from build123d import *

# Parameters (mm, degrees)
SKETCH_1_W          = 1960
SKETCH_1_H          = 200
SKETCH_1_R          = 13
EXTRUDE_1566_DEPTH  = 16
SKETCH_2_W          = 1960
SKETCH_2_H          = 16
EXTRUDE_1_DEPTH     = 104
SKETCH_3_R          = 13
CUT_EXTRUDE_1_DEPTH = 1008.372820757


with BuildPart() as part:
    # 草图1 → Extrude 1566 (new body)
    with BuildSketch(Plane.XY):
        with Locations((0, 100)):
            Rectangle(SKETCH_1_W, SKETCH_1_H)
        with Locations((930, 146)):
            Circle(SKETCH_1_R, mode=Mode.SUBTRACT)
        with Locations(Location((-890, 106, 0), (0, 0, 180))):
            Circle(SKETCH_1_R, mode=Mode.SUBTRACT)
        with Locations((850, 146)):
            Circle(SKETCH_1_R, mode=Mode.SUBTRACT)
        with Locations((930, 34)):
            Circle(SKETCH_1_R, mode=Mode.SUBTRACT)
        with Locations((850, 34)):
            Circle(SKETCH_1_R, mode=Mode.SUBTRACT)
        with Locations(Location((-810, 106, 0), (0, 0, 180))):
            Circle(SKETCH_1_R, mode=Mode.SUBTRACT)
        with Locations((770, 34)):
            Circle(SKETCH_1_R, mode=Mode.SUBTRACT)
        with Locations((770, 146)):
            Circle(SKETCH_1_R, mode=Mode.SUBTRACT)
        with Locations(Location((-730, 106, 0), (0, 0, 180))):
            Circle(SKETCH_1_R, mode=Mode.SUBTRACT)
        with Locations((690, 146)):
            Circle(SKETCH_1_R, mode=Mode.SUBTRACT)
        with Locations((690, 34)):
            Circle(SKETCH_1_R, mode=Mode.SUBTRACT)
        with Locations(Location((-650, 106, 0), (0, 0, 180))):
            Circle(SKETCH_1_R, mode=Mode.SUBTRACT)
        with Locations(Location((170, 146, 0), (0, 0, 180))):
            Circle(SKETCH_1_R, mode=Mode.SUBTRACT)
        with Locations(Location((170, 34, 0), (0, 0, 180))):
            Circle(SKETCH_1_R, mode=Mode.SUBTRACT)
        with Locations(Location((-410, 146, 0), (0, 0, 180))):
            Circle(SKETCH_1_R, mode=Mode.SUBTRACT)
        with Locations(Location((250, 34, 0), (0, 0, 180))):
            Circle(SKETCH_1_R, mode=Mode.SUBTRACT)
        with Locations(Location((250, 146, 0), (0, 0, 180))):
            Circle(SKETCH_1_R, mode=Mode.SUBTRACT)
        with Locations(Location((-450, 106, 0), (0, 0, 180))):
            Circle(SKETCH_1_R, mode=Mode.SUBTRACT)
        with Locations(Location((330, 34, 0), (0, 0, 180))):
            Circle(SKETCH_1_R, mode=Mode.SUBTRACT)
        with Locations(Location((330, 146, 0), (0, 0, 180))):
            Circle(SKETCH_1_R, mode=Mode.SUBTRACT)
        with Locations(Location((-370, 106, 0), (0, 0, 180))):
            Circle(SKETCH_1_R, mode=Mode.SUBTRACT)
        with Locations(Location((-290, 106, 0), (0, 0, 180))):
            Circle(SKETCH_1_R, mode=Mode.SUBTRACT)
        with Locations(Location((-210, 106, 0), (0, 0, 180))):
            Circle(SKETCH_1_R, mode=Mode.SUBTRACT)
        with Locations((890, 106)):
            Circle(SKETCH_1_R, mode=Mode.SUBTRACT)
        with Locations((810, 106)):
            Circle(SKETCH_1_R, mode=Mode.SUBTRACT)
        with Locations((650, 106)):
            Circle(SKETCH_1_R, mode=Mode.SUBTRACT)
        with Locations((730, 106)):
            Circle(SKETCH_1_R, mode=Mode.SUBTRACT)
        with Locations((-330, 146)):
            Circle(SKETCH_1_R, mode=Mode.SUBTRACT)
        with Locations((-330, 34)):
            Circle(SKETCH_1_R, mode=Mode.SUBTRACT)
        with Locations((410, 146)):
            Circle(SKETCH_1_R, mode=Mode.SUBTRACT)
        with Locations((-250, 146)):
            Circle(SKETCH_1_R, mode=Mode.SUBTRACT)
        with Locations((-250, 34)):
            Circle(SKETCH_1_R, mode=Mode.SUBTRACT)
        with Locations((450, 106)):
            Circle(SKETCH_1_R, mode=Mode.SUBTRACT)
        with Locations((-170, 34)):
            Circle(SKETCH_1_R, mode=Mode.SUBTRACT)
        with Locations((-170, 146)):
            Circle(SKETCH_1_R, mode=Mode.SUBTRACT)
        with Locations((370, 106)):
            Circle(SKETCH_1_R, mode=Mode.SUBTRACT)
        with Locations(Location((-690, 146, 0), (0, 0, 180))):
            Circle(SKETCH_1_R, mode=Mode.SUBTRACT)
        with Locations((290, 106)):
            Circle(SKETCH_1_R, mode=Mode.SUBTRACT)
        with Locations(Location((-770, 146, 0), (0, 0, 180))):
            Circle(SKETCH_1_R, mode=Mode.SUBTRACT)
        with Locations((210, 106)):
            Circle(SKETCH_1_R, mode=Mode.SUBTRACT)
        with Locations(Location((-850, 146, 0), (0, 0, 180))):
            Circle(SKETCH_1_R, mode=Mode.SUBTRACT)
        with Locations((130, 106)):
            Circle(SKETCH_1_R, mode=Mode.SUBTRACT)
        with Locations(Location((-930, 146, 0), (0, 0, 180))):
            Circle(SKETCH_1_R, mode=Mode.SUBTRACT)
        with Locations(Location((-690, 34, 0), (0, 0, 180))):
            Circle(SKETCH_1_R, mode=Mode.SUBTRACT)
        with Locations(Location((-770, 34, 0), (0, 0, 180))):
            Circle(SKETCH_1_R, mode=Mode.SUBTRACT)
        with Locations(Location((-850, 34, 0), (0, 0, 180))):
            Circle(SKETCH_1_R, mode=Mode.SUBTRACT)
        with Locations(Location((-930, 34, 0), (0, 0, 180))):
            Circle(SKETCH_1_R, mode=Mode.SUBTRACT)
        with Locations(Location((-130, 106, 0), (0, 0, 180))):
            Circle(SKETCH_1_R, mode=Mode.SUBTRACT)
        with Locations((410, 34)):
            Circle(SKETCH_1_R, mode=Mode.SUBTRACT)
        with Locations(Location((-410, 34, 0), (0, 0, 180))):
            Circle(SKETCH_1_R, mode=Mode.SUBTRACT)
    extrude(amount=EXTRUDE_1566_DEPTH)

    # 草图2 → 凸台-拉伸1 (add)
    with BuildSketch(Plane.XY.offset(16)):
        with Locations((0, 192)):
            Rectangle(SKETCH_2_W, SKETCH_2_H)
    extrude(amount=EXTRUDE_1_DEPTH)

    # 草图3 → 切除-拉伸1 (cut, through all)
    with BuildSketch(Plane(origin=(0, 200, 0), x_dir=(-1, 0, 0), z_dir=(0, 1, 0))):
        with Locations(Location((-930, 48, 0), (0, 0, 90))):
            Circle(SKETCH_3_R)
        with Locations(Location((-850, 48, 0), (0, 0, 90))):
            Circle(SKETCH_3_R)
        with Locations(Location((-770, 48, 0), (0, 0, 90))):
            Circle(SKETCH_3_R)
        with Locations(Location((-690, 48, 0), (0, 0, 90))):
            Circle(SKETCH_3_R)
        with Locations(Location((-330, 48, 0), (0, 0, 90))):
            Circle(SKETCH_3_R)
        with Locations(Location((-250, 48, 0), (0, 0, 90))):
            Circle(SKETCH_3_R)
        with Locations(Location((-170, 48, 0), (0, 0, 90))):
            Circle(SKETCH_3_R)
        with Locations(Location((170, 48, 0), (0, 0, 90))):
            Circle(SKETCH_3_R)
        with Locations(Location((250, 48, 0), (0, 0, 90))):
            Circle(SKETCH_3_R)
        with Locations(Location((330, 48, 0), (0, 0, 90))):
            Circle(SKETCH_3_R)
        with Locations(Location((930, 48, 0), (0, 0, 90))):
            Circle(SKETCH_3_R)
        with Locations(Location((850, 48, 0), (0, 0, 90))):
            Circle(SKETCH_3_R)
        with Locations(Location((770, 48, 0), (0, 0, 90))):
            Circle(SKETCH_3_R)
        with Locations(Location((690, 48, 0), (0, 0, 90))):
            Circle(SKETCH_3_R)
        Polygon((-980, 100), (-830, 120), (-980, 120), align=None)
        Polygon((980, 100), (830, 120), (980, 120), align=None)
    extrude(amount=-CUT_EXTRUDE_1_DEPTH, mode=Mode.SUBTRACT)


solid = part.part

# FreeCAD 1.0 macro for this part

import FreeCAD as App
import Part
import Sketcher

V = App.Vector
Q = App.Units.Quantity

doc = App.newDocument("Part")
body = doc.addObject("PartDesign::Body", "Body")

# Sketch on XY plane
sketch1 = body.newObject("Sketcher::SketchObject", "Sketch")
sketch1.AttachmentSupport = (doc.getObject("XY_Plane"), [""])
sketch1.MapMode = "FlatFace"
sketch1.addGeometry([
    Part.LineSegment(V(-980, 200, 0), V(-980, 0, 0)),  # 0
    Part.LineSegment(V(-980, 0, 0), V(980, 0, 0)),  # 1
    Part.LineSegment(V(980, 0, 0), V(980, 200, 0)),  # 2
    Part.LineSegment(V(980, 200, 0), V(-980, 200, 0)),  # 3
    Part.Circle(V(-930, 34, 0), V(0, 0, 1), 13),  # 4
    Part.Circle(V(-850, 34, 0), V(0, 0, 1), 13),  # 5
    Part.Circle(V(-770, 34, 0), V(0, 0, 1), 13),  # 6
    Part.Circle(V(-690, 34, 0), V(0, 0, 1), 13),  # 7
    Part.Circle(V(-410, 34, 0), V(0, 0, 1), 13),  # 8
    Part.Circle(V(-330, 34, 0), V(0, 0, 1), 13),  # 9
    Part.Circle(V(-250, 34, 0), V(0, 0, 1), 13),  # 10
    Part.Circle(V(-170, 34, 0), V(0, 0, 1), 13),  # 11
    Part.Circle(V(170, 34, 0), V(0, 0, 1), 13),  # 12
    Part.Circle(V(250, 34, 0), V(0, 0, 1), 13),  # 13
    Part.Circle(V(330, 34, 0), V(0, 0, 1), 13),  # 14
    Part.Circle(V(410, 34, 0), V(0, 0, 1), 13),  # 15
    Part.Circle(V(690, 34, 0), V(0, 0, 1), 13),  # 16
    Part.Circle(V(770, 34, 0), V(0, 0, 1), 13),  # 17
    Part.Circle(V(850, 34, 0), V(0, 0, 1), 13),  # 18
    Part.Circle(V(930, 34, 0), V(0, 0, 1), 13),  # 19
    Part.Circle(V(-890, 106, 0), V(0, 0, 1), 13),  # 20
    Part.Circle(V(-810, 106, 0), V(0, 0, 1), 13),  # 21
    Part.Circle(V(-730, 106, 0), V(0, 0, 1), 13),  # 22
    Part.Circle(V(-650, 106, 0), V(0, 0, 1), 13),  # 23
    Part.Circle(V(-450, 106, 0), V(0, 0, 1), 13),  # 24
    Part.Circle(V(-370, 106, 0), V(0, 0, 1), 13),  # 25
    Part.Circle(V(-290, 106, 0), V(0, 0, 1), 13),  # 26
    Part.Circle(V(-210, 106, 0), V(0, 0, 1), 13),  # 27
    Part.Circle(V(-130, 106, 0), V(0, 0, 1), 13),  # 28
    Part.Circle(V(-930, 146, 0), V(0, 0, 1), 13),  # 29
    Part.Circle(V(-850, 146, 0), V(0, 0, 1), 13),  # 30
    Part.Circle(V(-770, 146, 0), V(0, 0, 1), 13),  # 31
    Part.Circle(V(-690, 146, 0), V(0, 0, 1), 13),  # 32
    Part.Circle(V(-410, 146, 0), V(0, 0, 1), 13),  # 33
    Part.Circle(V(-330, 146, 0), V(0, 0, 1), 13),  # 34
    Part.Circle(V(-250, 146, 0), V(0, 0, 1), 13),  # 35
    Part.Circle(V(-170, 146, 0), V(0, 0, 1), 13),  # 36
    Part.Circle(V(130, 106, 0), V(0, 0, 1), 13),  # 37
    Part.Circle(V(210, 106, 0), V(0, 0, 1), 13),  # 38
    Part.Circle(V(290, 106, 0), V(0, 0, 1), 13),  # 39
    Part.Circle(V(370, 106, 0), V(0, 0, 1), 13),  # 40
    Part.Circle(V(450, 106, 0), V(0, 0, 1), 13),  # 41
    Part.Circle(V(650, 106, 0), V(0, 0, 1), 13),  # 42
    Part.Circle(V(730, 106, 0), V(0, 0, 1), 13),  # 43
    Part.Circle(V(810, 106, 0), V(0, 0, 1), 13),  # 44
    Part.Circle(V(890, 106, 0), V(0, 0, 1), 13),  # 45
    Part.Circle(V(170, 146, 0), V(0, 0, 1), 13),  # 46
    Part.Circle(V(250, 146, 0), V(0, 0, 1), 13),  # 47
    Part.Circle(V(330, 146, 0), V(0, 0, 1), 13),  # 48
    Part.Circle(V(410, 146, 0), V(0, 0, 1), 13),  # 49
    Part.Circle(V(690, 146, 0), V(0, 0, 1), 13),  # 50
    Part.Circle(V(770, 146, 0), V(0, 0, 1), 13),  # 51
    Part.Circle(V(850, 146, 0), V(0, 0, 1), 13),  # 52
    Part.Circle(V(930, 146, 0), V(0, 0, 1), 13),  # 53
], False)
sketch1.addConstraint([
    Sketcher.Constraint("Coincident", 0, 2, 1, 1),
    Sketcher.Constraint("Coincident", 1, 2, 2, 1),
    Sketcher.Constraint("Coincident", 2, 2, 3, 1),
    Sketcher.Constraint("Coincident", 3, 2, 0, 1),
    Sketcher.Constraint("Vertical", 0),
    Sketcher.Constraint("Horizontal", 1),
    Sketcher.Constraint("Vertical", 2),
    Sketcher.Constraint("Horizontal", 3),
    Sketcher.Constraint("Equal", 4, 5),
    Sketcher.Constraint("Equal", 5, 6),
    Sketcher.Constraint("Equal", 6, 7),
    Sketcher.Constraint("Equal", 7, 8),
    Sketcher.Constraint("Equal", 8, 9),
    Sketcher.Constraint("Equal", 9, 10),
    Sketcher.Constraint("Equal", 10, 11),
    Sketcher.Constraint("Equal", 11, 12),
    Sketcher.Constraint("Equal", 12, 13),
    Sketcher.Constraint("Equal", 13, 14),
    Sketcher.Constraint("Equal", 14, 15),
    Sketcher.Constraint("Equal", 15, 16),
    Sketcher.Constraint("Equal", 16, 17),
    Sketcher.Constraint("Equal", 17, 18),
    Sketcher.Constraint("Equal", 18, 19),
    Sketcher.Constraint("Equal", 19, 20),
    Sketcher.Constraint("Equal", 20, 21),
    Sketcher.Constraint("Equal", 21, 22),
    Sketcher.Constraint("Equal", 22, 23),
    Sketcher.Constraint("Equal", 23, 24),
    Sketcher.Constraint("Equal", 24, 25),
    Sketcher.Constraint("Equal", 25, 26),
    Sketcher.Constraint("Equal", 26, 27),
    Sketcher.Constraint("Equal", 27, 28),
    Sketcher.Constraint("Equal", 28, 29),
    Sketcher.Constraint("Equal", 29, 30),
    Sketcher.Constraint("Equal", 30, 31),
    Sketcher.Constraint("Equal", 31, 32),
    Sketcher.Constraint("Equal", 32, 33),
    Sketcher.Constraint("Equal", 33, 34),
    Sketcher.Constraint("Equal", 34, 35),
    Sketcher.Constraint("Equal", 35, 36),
    Sketcher.Constraint("Equal", 36, 37),
    Sketcher.Constraint("Equal", 37, 38),
    Sketcher.Constraint("Equal", 38, 39),
    Sketcher.Constraint("Equal", 39, 40),
    Sketcher.Constraint("Equal", 40, 41),
    Sketcher.Constraint("Equal", 41, 42),
    Sketcher.Constraint("Equal", 42, 43),
    Sketcher.Constraint("Equal", 43, 44),
    Sketcher.Constraint("Equal", 44, 45),
    Sketcher.Constraint("Equal", 45, 46),
    Sketcher.Constraint("Equal", 46, 47),
    Sketcher.Constraint("Equal", 47, 48),
    Sketcher.Constraint("Equal", 48, 49),
    Sketcher.Constraint("Equal", 49, 50),
    Sketcher.Constraint("Equal", 50, 51),
    Sketcher.Constraint("Equal", 51, 52),
    Sketcher.Constraint("Equal", 52, 53),
    Sketcher.Constraint("Symmetric", 0, 2, 1, 2, -1, 1),
    Sketcher.Constraint("Symmetric", 11, 3, 12, 3, -2),
    Sketcher.Constraint("Symmetric", 10, 3, 13, 3, -2),
    Sketcher.Constraint("Symmetric", 9, 3, 14, 3, -2),
    Sketcher.Constraint("Symmetric", 8, 3, 15, 3, -2),
    Sketcher.Constraint("Symmetric", 7, 3, 16, 3, -2),
    Sketcher.Constraint("Symmetric", 6, 3, 17, 3, -2),
    Sketcher.Constraint("Symmetric", 5, 3, 18, 3, -2),
    Sketcher.Constraint("Symmetric", 4, 3, 19, 3, -2),
    Sketcher.Constraint("Symmetric", 28, 3, 37, 3, -2),
    Sketcher.Constraint("Symmetric", 27, 3, 38, 3, -2),
    Sketcher.Constraint("Symmetric", 26, 3, 39, 3, -2),
    Sketcher.Constraint("Symmetric", 25, 3, 40, 3, -2),
    Sketcher.Constraint("Symmetric", 24, 3, 41, 3, -2),
    Sketcher.Constraint("Symmetric", 23, 3, 42, 3, -2),
    Sketcher.Constraint("Symmetric", 22, 3, 43, 3, -2),
    Sketcher.Constraint("Symmetric", 21, 3, 44, 3, -2),
    Sketcher.Constraint("Symmetric", 20, 3, 45, 3, -2),
    Sketcher.Constraint("Symmetric", 36, 3, 46, 3, -2),
    Sketcher.Constraint("Symmetric", 35, 3, 47, 3, -2),
    Sketcher.Constraint("Symmetric", 34, 3, 48, 3, -2),
    Sketcher.Constraint("Symmetric", 33, 3, 49, 3, -2),
    Sketcher.Constraint("Symmetric", 32, 3, 50, 3, -2),
    Sketcher.Constraint("Symmetric", 31, 3, 51, 3, -2),
    Sketcher.Constraint("Symmetric", 30, 3, 52, 3, -2),
    Sketcher.Constraint("Symmetric", 29, 3, 53, 3, -2),
    Sketcher.Constraint("Horizontal", 4, 3, 5, 3),
    Sketcher.Constraint("Horizontal", 5, 3, 6, 3),
    Sketcher.Constraint("Horizontal", 6, 3, 7, 3),
    Sketcher.Constraint("Horizontal", 7, 3, 8, 3),
    Sketcher.Constraint("Horizontal", 8, 3, 9, 3),
    Sketcher.Constraint("Horizontal", 9, 3, 10, 3),
    Sketcher.Constraint("Horizontal", 10, 3, 11, 3),
    Sketcher.Constraint("Horizontal", 20, 3, 21, 3),
    Sketcher.Constraint("Horizontal", 21, 3, 22, 3),
    Sketcher.Constraint("Horizontal", 22, 3, 23, 3),
    Sketcher.Constraint("Horizontal", 23, 3, 24, 3),
    Sketcher.Constraint("Horizontal", 24, 3, 25, 3),
    Sketcher.Constraint("Horizontal", 25, 3, 26, 3),
    Sketcher.Constraint("Horizontal", 26, 3, 27, 3),
    Sketcher.Constraint("Horizontal", 27, 3, 28, 3),
    Sketcher.Constraint("Horizontal", 29, 3, 30, 3),
    Sketcher.Constraint("Horizontal", 30, 3, 31, 3),
    Sketcher.Constraint("Horizontal", 31, 3, 32, 3),
    Sketcher.Constraint("Horizontal", 32, 3, 33, 3),
    Sketcher.Constraint("Horizontal", 33, 3, 34, 3),
    Sketcher.Constraint("Horizontal", 34, 3, 35, 3),
    Sketcher.Constraint("Horizontal", 35, 3, 36, 3),
    Sketcher.Constraint("Vertical", 4, 3, 29, 3),
    Sketcher.Constraint("Vertical", 5, 3, 30, 3),
    Sketcher.Constraint("Vertical", 6, 3, 31, 3),
    Sketcher.Constraint("Vertical", 7, 3, 32, 3),
    Sketcher.Constraint("Vertical", 8, 3, 33, 3),
    Sketcher.Constraint("Vertical", 9, 3, 34, 3),
    Sketcher.Constraint("Vertical", 10, 3, 35, 3),
    Sketcher.Constraint("Vertical", 11, 3, 36, 3),
    Sketcher.Constraint("Diameter", 4, Q("26 mm")),
    Sketcher.Constraint("DistanceX", 1, 1, 1, 2, Q("1960 mm")),
    Sketcher.Constraint("DistanceY", 0, 2, 0, 1, Q("200 mm")),
    Sketcher.Constraint("DistanceX", 4, 3, -1, 1, Q("930 mm")),
    Sketcher.Constraint("DistanceY", -1, 1, 4, 3, Q("34 mm")),
    Sketcher.Constraint("DistanceX", 5, 3, -1, 1, Q("850 mm")),
    Sketcher.Constraint("DistanceX", 6, 3, -1, 1, Q("770 mm")),
    Sketcher.Constraint("DistanceX", 7, 3, -1, 1, Q("690 mm")),
    Sketcher.Constraint("DistanceX", 8, 3, -1, 1, Q("410 mm")),
    Sketcher.Constraint("DistanceX", 9, 3, -1, 1, Q("330 mm")),
    Sketcher.Constraint("DistanceX", 10, 3, -1, 1, Q("250 mm")),
    Sketcher.Constraint("DistanceX", 11, 3, -1, 1, Q("170 mm")),
    Sketcher.Constraint("DistanceX", 20, 3, -1, 1, Q("890 mm")),
    Sketcher.Constraint("DistanceY", -1, 1, 20, 3, Q("106 mm")),
    Sketcher.Constraint("DistanceX", 21, 3, -1, 1, Q("810 mm")),
    Sketcher.Constraint("DistanceX", 22, 3, -1, 1, Q("730 mm")),
    Sketcher.Constraint("DistanceX", 23, 3, -1, 1, Q("650 mm")),
    Sketcher.Constraint("DistanceX", 24, 3, -1, 1, Q("450 mm")),
    Sketcher.Constraint("DistanceX", 25, 3, -1, 1, Q("370 mm")),
    Sketcher.Constraint("DistanceX", 26, 3, -1, 1, Q("290 mm")),
    Sketcher.Constraint("DistanceX", 27, 3, -1, 1, Q("210 mm")),
    Sketcher.Constraint("DistanceX", 28, 3, -1, 1, Q("130 mm")),
    Sketcher.Constraint("DistanceY", -1, 1, 29, 3, Q("146 mm")),
])
pad1 = body.newObject("PartDesign::Pad", "Pad")
pad1.Profile = sketch1
pad1.Length = 16

# Sketch on XY plane
sketch2 = body.newObject("Sketcher::SketchObject", "Sketch001")
sketch2.AttachmentSupport = (doc.getObject("XY_Plane"), [""])
sketch2.MapMode = "FlatFace"
sketch2.AttachmentOffset = App.Placement(V(0, 0, 16), App.Rotation())
sketch2.addGeometry([
    Part.LineSegment(V(-980, 200, 0), V(-980, 184, 0)),
    Part.LineSegment(V(-980, 184, 0), V(980, 184, 0)),
    Part.LineSegment(V(980, 184, 0), V(980, 200, 0)),
    Part.LineSegment(V(980, 200, 0), V(-980, 200, 0)),
], False)
sketch2.addConstraint([
    Sketcher.Constraint("Coincident", 0, 2, 1, 1),
    Sketcher.Constraint("Coincident", 1, 2, 2, 1),
    Sketcher.Constraint("Coincident", 2, 2, 3, 1),
    Sketcher.Constraint("Coincident", 3, 2, 0, 1),
    Sketcher.Constraint("Vertical", 0),
    Sketcher.Constraint("Horizontal", 1),
    Sketcher.Constraint("Vertical", 2),
    Sketcher.Constraint("Horizontal", 3),
    Sketcher.Constraint("DistanceX", 1, 1, 1, 2, Q("1960 mm")),
    Sketcher.Constraint("DistanceY", 0, 2, 0, 1, Q("16 mm")),
    Sketcher.Constraint("DistanceX", 0, 2, -1, 1, Q("980 mm")),
    Sketcher.Constraint("DistanceY", -1, 1, 0, 2, Q("184 mm")),
])
pad2 = body.newObject("PartDesign::Pad", "Pad001")
pad2.Profile = sketch2
pad2.Length = 104

# Sketch on XZ plane
sketch3 = body.newObject("Sketcher::SketchObject", "Sketch002")
sketch3.AttachmentSupport = (doc.getObject("XZ_Plane"), [""])
sketch3.MapMode = "FlatFace"
sketch3.AttachmentOffset = App.Placement(V(0, 0, -200), App.Rotation())
sketch3.addGeometry([
    Part.Circle(V(930, 48, 0), V(0, 0, 1), 13),  # 0
    Part.Circle(V(850, 48, 0), V(0, 0, 1), 13),  # 1
    Part.Circle(V(770, 48, 0), V(0, 0, 1), 13),  # 2
    Part.Circle(V(690, 48, 0), V(0, 0, 1), 13),  # 3
    Part.Circle(V(330, 48, 0), V(0, 0, 1), 13),  # 4
    Part.Circle(V(250, 48, 0), V(0, 0, 1), 13),  # 5
    Part.Circle(V(170, 48, 0), V(0, 0, 1), 13),  # 6
    Part.Circle(V(-170, 48, 0), V(0, 0, 1), 13),  # 7
    Part.Circle(V(-250, 48, 0), V(0, 0, 1), 13),  # 8
    Part.Circle(V(-330, 48, 0), V(0, 0, 1), 13),  # 9
    Part.Circle(V(-930, 48, 0), V(0, 0, 1), 13),  # 10
    Part.Circle(V(-850, 48, 0), V(0, 0, 1), 13),  # 11
    Part.Circle(V(-770, 48, 0), V(0, 0, 1), 13),  # 12
    Part.Circle(V(-690, 48, 0), V(0, 0, 1), 13),  # 13
    Part.LineSegment(V(980, 100, 0), V(830, 120, 0)),  # 14
    Part.LineSegment(V(830, 120, 0), V(980, 120, 0)),  # 15
    Part.LineSegment(V(980, 120, 0), V(980, 100, 0)),  # 16
    Part.LineSegment(V(-830, 120, 0), V(-980, 100, 0)),  # 17
    Part.LineSegment(V(-980, 100, 0), V(-980, 120, 0)),  # 18
    Part.LineSegment(V(-980, 120, 0), V(-830, 120, 0)),  # 19
], False)
sketch3.addConstraint([
    Sketcher.Constraint("Coincident", 14, 2, 15, 1),
    Sketcher.Constraint("Coincident", 15, 2, 16, 1),
    Sketcher.Constraint("Coincident", 16, 2, 14, 1),
    Sketcher.Constraint("Coincident", 17, 2, 18, 1),
    Sketcher.Constraint("Coincident", 18, 2, 19, 1),
    Sketcher.Constraint("Coincident", 19, 2, 17, 1),
    Sketcher.Constraint("Horizontal", 15),
    Sketcher.Constraint("Vertical", 16),
    Sketcher.Constraint("Vertical", 18),
    Sketcher.Constraint("Horizontal", 19),
    Sketcher.Constraint("Equal", 0, 1),
    Sketcher.Constraint("Equal", 1, 2),
    Sketcher.Constraint("Equal", 2, 3),
    Sketcher.Constraint("Equal", 3, 4),
    Sketcher.Constraint("Equal", 4, 5),
    Sketcher.Constraint("Equal", 5, 6),
    Sketcher.Constraint("Equal", 6, 7),
    Sketcher.Constraint("Equal", 7, 8),
    Sketcher.Constraint("Equal", 8, 9),
    Sketcher.Constraint("Equal", 9, 10),
    Sketcher.Constraint("Equal", 10, 11),
    Sketcher.Constraint("Equal", 11, 12),
    Sketcher.Constraint("Equal", 12, 13),
    Sketcher.Constraint("Symmetric", 6, 3, 7, 3, -2),
    Sketcher.Constraint("Symmetric", 5, 3, 8, 3, -2),
    Sketcher.Constraint("Symmetric", 4, 3, 9, 3, -2),
    Sketcher.Constraint("Symmetric", 0, 3, 10, 3, -2),
    Sketcher.Constraint("Symmetric", 1, 3, 11, 3, -2),
    Sketcher.Constraint("Symmetric", 2, 3, 12, 3, -2),
    Sketcher.Constraint("Symmetric", 3, 3, 13, 3, -2),
    Sketcher.Constraint("Symmetric", 16, 2, 17, 2, -2),
    Sketcher.Constraint("Symmetric", 14, 2, 19, 2, -2),
    Sketcher.Constraint("Horizontal", 0, 3, 1, 3),
    Sketcher.Constraint("Horizontal", 1, 3, 2, 3),
    Sketcher.Constraint("Horizontal", 2, 3, 3, 3),
    Sketcher.Constraint("Horizontal", 3, 3, 4, 3),
    Sketcher.Constraint("Horizontal", 4, 3, 5, 3),
    Sketcher.Constraint("Horizontal", 5, 3, 6, 3),
    Sketcher.Constraint("Diameter", 0, Q("26 mm")),
    Sketcher.Constraint("DistanceX", 15, 1, 15, 2, Q("150 mm")),
    Sketcher.Constraint("DistanceY", 16, 2, 16, 1, Q("20 mm")),
    Sketcher.Constraint("DistanceX", -1, 1, 0, 3, Q("930 mm")),
    Sketcher.Constraint("DistanceY", -1, 1, 0, 3, Q("48 mm")),
    Sketcher.Constraint("DistanceX", -1, 1, 1, 3, Q("850 mm")),
    Sketcher.Constraint("DistanceX", -1, 1, 2, 3, Q("770 mm")),
    Sketcher.Constraint("DistanceX", -1, 1, 3, 3, Q("690 mm")),
    Sketcher.Constraint("DistanceX", -1, 1, 4, 3, Q("330 mm")),
    Sketcher.Constraint("DistanceX", -1, 1, 5, 3, Q("250 mm")),
    Sketcher.Constraint("DistanceX", -1, 1, 6, 3, Q("170 mm")),
    Sketcher.Constraint("DistanceX", -1, 1, 14, 2, Q("830 mm")),
    Sketcher.Constraint("DistanceY", -1, 1, 14, 2, Q("120 mm")),
])
pocket1 = body.newObject("PartDesign::Pocket", "Pocket")
pocket1.Profile = sketch3
pocket1.Type = "ThroughAll"
pocket1.Reversed = True

doc.recompute()
